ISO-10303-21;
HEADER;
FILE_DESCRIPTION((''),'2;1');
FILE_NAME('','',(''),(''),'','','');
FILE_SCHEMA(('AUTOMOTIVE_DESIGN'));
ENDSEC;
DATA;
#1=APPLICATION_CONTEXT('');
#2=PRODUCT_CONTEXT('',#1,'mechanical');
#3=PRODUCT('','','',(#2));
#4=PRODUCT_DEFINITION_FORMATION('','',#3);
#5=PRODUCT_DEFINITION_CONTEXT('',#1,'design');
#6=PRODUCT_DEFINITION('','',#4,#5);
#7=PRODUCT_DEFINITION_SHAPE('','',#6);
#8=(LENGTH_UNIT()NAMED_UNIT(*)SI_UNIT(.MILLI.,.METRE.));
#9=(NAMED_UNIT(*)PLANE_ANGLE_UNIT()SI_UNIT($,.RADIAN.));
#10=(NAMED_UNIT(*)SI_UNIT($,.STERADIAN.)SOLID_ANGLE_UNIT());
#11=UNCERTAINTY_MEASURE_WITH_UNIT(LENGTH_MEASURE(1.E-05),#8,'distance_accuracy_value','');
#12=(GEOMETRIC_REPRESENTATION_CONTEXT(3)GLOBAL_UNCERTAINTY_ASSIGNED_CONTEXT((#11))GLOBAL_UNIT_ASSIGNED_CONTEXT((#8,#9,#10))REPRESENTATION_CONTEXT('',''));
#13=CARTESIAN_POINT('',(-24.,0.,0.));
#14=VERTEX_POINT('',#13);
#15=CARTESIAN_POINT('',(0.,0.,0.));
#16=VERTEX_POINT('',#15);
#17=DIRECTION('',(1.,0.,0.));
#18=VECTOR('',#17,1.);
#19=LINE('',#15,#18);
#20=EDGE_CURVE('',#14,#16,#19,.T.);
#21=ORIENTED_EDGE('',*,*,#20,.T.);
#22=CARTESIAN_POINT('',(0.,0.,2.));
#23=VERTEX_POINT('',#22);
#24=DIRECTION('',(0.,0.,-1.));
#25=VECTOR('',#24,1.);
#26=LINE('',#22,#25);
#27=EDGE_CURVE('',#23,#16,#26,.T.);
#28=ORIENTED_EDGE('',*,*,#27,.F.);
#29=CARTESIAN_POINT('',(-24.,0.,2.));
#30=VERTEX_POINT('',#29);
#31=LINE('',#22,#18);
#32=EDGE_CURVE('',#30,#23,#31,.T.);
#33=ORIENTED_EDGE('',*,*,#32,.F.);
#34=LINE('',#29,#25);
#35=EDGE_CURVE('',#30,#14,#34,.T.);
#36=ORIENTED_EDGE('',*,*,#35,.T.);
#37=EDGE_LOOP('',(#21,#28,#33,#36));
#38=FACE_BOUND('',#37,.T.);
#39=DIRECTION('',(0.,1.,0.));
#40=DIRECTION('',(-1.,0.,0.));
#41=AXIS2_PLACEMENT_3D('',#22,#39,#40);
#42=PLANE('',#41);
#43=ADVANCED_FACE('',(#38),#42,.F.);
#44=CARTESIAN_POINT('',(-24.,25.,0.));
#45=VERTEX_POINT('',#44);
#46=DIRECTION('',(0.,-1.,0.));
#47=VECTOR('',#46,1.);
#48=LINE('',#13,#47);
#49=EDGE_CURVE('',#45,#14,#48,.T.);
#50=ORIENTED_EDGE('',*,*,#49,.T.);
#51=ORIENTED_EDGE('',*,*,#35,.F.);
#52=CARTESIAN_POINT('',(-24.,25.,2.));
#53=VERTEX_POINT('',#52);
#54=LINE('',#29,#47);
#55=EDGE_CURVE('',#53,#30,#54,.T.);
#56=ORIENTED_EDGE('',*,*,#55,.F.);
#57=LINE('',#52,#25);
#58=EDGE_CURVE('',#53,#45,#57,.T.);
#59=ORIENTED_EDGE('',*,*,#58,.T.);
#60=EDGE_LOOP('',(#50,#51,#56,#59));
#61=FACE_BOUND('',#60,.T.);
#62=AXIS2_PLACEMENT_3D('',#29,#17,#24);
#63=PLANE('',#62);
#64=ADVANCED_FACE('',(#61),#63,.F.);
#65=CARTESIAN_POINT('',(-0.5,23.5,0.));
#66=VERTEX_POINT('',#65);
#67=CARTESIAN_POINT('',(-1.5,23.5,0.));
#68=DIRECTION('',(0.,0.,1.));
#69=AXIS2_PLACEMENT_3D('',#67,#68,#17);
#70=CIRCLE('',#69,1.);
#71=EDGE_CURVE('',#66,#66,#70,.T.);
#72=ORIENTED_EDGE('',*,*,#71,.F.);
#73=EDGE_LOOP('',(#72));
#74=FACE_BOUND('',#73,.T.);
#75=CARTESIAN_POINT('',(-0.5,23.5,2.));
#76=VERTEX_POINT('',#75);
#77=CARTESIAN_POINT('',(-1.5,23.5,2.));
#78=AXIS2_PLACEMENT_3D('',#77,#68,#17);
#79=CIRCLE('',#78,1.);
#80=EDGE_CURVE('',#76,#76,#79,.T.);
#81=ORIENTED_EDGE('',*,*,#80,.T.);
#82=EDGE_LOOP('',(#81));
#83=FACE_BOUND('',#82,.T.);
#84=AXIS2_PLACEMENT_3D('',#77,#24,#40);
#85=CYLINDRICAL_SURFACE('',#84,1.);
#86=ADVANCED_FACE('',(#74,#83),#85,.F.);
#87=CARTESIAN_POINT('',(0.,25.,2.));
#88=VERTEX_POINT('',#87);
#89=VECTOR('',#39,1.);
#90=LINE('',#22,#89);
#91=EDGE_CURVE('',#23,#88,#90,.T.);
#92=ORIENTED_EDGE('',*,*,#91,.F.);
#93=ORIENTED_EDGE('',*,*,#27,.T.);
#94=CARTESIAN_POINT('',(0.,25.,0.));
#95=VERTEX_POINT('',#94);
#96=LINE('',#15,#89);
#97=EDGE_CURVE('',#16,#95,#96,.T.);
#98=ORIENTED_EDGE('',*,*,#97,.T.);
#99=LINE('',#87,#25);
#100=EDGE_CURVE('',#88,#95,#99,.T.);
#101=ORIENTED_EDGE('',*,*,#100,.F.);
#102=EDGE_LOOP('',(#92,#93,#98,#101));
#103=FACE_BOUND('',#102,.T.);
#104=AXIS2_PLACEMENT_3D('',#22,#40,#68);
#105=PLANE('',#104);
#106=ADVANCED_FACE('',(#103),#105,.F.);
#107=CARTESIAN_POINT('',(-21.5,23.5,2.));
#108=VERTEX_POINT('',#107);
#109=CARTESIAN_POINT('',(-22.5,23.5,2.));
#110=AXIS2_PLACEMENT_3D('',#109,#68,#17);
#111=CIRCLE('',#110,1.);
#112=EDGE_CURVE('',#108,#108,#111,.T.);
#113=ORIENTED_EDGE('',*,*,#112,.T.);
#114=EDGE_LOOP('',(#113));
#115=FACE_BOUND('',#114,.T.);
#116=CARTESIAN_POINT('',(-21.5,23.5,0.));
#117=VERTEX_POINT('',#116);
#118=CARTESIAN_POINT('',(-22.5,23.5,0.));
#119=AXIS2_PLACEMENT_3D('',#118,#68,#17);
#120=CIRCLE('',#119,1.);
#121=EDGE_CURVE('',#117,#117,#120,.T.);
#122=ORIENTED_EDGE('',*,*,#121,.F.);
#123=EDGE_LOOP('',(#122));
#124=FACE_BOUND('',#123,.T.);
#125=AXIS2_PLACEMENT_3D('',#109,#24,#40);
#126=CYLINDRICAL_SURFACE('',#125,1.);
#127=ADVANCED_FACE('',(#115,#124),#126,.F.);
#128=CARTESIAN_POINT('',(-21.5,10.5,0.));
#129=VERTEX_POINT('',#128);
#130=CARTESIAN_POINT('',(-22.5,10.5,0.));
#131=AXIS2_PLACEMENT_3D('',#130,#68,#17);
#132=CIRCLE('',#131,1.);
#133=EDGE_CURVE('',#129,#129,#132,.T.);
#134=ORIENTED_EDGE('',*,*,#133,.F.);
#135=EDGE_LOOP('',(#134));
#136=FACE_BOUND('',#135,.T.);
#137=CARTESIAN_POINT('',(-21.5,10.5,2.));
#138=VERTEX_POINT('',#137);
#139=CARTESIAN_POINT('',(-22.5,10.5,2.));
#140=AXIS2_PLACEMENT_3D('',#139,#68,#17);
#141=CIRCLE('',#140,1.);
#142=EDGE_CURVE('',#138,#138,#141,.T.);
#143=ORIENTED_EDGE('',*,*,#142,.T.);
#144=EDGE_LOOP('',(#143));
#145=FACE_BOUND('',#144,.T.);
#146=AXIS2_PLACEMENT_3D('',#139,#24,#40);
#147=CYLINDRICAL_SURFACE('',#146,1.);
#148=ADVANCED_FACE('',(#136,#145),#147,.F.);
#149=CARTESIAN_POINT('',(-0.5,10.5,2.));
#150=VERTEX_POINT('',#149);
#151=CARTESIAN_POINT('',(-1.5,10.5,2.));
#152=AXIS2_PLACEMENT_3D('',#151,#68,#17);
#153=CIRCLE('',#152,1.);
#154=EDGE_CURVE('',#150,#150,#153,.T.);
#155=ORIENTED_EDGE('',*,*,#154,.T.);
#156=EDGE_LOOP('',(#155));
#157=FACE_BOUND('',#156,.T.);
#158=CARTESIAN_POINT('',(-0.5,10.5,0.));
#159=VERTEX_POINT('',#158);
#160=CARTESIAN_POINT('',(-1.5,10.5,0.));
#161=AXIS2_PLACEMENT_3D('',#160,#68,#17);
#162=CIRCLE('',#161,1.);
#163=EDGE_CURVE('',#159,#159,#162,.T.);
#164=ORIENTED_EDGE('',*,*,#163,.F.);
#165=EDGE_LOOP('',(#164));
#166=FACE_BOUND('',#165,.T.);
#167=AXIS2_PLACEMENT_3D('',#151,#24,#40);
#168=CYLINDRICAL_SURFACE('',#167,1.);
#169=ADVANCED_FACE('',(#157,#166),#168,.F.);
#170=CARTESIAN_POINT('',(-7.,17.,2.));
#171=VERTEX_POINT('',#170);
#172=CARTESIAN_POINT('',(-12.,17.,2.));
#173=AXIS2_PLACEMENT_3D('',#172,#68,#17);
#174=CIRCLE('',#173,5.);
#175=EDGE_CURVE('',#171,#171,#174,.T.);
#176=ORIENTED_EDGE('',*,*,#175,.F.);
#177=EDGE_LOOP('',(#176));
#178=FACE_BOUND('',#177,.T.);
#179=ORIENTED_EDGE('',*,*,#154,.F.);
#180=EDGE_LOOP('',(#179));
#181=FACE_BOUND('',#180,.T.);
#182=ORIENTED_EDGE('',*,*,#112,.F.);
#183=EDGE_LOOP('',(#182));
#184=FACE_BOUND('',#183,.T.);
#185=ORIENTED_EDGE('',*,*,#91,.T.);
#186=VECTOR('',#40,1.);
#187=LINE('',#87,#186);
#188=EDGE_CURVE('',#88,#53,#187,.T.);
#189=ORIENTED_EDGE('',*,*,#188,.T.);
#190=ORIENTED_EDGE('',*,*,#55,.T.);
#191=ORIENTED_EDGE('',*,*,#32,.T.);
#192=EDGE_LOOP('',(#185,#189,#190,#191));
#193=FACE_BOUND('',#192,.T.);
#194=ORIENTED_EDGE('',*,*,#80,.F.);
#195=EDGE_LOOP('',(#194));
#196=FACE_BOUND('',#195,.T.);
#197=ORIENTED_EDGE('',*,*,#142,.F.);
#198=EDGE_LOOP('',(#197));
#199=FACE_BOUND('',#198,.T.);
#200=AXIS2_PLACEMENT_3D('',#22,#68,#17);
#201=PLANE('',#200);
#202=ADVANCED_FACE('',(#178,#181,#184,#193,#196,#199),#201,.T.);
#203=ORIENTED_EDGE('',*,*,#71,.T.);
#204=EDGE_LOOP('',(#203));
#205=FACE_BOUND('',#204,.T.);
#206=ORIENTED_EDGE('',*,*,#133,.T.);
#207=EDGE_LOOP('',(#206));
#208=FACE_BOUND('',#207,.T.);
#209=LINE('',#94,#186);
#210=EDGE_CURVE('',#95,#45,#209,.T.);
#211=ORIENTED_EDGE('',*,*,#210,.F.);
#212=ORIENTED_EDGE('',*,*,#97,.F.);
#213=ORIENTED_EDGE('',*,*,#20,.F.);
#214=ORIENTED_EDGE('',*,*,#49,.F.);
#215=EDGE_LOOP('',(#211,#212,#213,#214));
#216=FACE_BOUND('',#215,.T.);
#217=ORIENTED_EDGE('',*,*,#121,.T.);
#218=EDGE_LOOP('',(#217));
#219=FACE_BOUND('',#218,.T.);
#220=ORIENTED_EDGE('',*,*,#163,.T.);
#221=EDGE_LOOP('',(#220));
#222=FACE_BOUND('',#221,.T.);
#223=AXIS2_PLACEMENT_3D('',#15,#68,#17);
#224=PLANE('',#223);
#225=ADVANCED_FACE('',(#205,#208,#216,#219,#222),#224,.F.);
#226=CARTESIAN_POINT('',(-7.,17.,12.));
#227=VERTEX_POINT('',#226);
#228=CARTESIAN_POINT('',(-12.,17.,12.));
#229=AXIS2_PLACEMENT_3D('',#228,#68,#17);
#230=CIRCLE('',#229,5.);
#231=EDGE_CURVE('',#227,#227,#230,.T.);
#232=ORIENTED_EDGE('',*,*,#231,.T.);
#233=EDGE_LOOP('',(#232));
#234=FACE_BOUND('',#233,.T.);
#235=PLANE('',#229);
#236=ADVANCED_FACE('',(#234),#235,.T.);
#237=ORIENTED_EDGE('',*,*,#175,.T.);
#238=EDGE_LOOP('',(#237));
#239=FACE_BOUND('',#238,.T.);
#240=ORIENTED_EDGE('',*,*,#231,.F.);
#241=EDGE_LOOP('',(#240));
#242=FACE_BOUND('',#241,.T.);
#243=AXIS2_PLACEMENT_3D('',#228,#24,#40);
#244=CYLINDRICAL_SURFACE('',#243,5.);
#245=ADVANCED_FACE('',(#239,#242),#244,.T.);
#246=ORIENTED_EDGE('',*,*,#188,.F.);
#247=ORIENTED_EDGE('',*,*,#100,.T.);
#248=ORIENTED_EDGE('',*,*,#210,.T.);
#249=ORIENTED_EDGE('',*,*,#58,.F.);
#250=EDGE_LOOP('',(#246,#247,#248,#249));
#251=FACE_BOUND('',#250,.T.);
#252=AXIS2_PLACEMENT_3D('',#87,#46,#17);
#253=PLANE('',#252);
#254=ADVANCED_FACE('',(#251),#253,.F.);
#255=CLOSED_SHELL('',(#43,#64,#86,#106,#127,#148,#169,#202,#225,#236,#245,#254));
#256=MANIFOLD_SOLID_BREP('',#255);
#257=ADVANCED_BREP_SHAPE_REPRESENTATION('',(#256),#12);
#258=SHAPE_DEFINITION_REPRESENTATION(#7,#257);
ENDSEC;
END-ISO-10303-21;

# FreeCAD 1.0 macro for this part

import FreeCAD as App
import Part
import Sketcher
from FreeCAD import Vector

doc = App.newDocument("Part")
params = doc.addObject("Spreadsheet::Sheet", "Params")
for row, (alias, value) in enumerate([
    ("sketch1_diameter", "2 mm"),
    ("sketch1_width", "24 mm"),
    ("sketch1_height", "25 mm"),
    ("pad1_length", "2 mm"),
    ("sketch2_diameter", "10 mm"),
    ("pad2_length", "10 mm"),
], start=1):
    params.set(f"A{row}", alias)
    params.set(f"B{row}", "=" + value)
    params.setAlias(f"B{row}", alias)

body = doc.addObject("PartDesign::Body", "Body")

# Sketch on XY plane
sketch1 = doc.addObject("Sketcher::SketchObject", "Sketch")
body.addObject(sketch1)
sketch1.AttachmentSupport = (doc.XY_Plane, [""])
sketch1.MapMode = "FlatFace"
sketch1.addGeometry([
    Part.LineSegment(Vector(-24, 25, 0), Vector(-24, 0, 0)),  # 0
    Part.LineSegment(Vector(-24, 0, 0), Vector(0, 0, 0)),  # 1
    Part.LineSegment(Vector(0, 0, 0), Vector(0, 25, 0)),  # 2
    Part.LineSegment(Vector(0, 25, 0), Vector(-24, 25, 0)),  # 3
    Part.Circle(Vector(-22.5, 10.5, 0), Vector(0, 0, 1), 1),  # 4
    Part.Circle(Vector(-1.5, 10.5, 0), Vector(0, 0, 1), 1),  # 5
    Part.Circle(Vector(-22.5, 23.5, 0), Vector(0, 0, 1), 1),  # 6
    Part.Circle(Vector(-1.5, 23.5, 0), Vector(0, 0, 1), 1),  # 7
], False)
sketch1.addConstraint([
    Sketcher.Constraint("Coincident", 0, 2, 1, 1),
    Sketcher.Constraint("Coincident", 1, 2, 2, 1),
    Sketcher.Constraint("Coincident", 2, 2, 3, 1),
    Sketcher.Constraint("Coincident", 3, 2, 0, 1),
    Sketcher.Constraint("Vertical", 0),
    Sketcher.Constraint("Horizontal", 1),
    Sketcher.Constraint("Vertical", 2),
    Sketcher.Constraint("Horizontal", 3),
    Sketcher.Constraint("Coincident", 1, 2, -1, 1),
    Sketcher.Constraint("Equal", 4, 5),
    Sketcher.Constraint("Equal", 5, 6),
    Sketcher.Constraint("Equal", 6, 7),
    Sketcher.Constraint("Horizontal", 4, 3, 5, 3),
    Sketcher.Constraint("Horizontal", 6, 3, 7, 3),
    Sketcher.Constraint("Vertical", 4, 3, 6, 3),
    Sketcher.Constraint("Vertical", 5, 3, 7, 3),
    Sketcher.Constraint("Diameter", 4, 2.0),
    Sketcher.Constraint("DistanceX", 1, 1, 1, 2, 24.0),
    Sketcher.Constraint("DistanceY", 0, 2, 0, 1, 25.0),
    Sketcher.Constraint("DistanceX", 4, 3, 5, 3, 21.0),
    Sketcher.Constraint("DistanceY", 4, 3, 6, 3, 13.0),
    Sketcher.Constraint("DistanceX", 4, 3, -1, 1, 22.5),
    Sketcher.Constraint("DistanceY", -1, 1, 4, 3, 10.5),
])
sketch1.setExpression("Constraints[16]", "Params.sketch1_diameter")
sketch1.setExpression("Constraints[17]", "Params.sketch1_width")
sketch1.setExpression("Constraints[18]", "Params.sketch1_height")
pad1 = doc.addObject("PartDesign::Pad", "Pad")
body.addObject(pad1)
pad1.Profile = sketch1
pad1.setExpression("Length", "Params.pad1_length")

# Sketch on XY plane
sketch2 = doc.addObject("Sketcher::SketchObject", "Sketch001")
body.addObject(sketch2)
sketch2.AttachmentSupport = (doc.XY_Plane, [""])
sketch2.MapMode = "FlatFace"
sketch2.AttachmentOffset = App.Placement(Vector(0, 0, 2), App.Rotation())
sketch2.addGeometry(Part.Circle(Vector(-12, 17, 0), Vector(0, 0, 1), 5), False)
sketch2.addConstraint([
    Sketcher.Constraint("Diameter", 0, 10.0),
    Sketcher.Constraint("DistanceX", 0, 3, -1, 1, 12.0),
    Sketcher.Constraint("DistanceY", -1, 1, 0, 3, 17.0),
])
sketch2.setExpression("Constraints[0]", "Params.sketch2_diameter")
pad2 = doc.addObject("PartDesign::Pad", "Pad001")
body.addObject(pad2)
pad2.Profile = sketch2
pad2.setExpression("Length", "Params.pad2_length")

doc.recompute()
